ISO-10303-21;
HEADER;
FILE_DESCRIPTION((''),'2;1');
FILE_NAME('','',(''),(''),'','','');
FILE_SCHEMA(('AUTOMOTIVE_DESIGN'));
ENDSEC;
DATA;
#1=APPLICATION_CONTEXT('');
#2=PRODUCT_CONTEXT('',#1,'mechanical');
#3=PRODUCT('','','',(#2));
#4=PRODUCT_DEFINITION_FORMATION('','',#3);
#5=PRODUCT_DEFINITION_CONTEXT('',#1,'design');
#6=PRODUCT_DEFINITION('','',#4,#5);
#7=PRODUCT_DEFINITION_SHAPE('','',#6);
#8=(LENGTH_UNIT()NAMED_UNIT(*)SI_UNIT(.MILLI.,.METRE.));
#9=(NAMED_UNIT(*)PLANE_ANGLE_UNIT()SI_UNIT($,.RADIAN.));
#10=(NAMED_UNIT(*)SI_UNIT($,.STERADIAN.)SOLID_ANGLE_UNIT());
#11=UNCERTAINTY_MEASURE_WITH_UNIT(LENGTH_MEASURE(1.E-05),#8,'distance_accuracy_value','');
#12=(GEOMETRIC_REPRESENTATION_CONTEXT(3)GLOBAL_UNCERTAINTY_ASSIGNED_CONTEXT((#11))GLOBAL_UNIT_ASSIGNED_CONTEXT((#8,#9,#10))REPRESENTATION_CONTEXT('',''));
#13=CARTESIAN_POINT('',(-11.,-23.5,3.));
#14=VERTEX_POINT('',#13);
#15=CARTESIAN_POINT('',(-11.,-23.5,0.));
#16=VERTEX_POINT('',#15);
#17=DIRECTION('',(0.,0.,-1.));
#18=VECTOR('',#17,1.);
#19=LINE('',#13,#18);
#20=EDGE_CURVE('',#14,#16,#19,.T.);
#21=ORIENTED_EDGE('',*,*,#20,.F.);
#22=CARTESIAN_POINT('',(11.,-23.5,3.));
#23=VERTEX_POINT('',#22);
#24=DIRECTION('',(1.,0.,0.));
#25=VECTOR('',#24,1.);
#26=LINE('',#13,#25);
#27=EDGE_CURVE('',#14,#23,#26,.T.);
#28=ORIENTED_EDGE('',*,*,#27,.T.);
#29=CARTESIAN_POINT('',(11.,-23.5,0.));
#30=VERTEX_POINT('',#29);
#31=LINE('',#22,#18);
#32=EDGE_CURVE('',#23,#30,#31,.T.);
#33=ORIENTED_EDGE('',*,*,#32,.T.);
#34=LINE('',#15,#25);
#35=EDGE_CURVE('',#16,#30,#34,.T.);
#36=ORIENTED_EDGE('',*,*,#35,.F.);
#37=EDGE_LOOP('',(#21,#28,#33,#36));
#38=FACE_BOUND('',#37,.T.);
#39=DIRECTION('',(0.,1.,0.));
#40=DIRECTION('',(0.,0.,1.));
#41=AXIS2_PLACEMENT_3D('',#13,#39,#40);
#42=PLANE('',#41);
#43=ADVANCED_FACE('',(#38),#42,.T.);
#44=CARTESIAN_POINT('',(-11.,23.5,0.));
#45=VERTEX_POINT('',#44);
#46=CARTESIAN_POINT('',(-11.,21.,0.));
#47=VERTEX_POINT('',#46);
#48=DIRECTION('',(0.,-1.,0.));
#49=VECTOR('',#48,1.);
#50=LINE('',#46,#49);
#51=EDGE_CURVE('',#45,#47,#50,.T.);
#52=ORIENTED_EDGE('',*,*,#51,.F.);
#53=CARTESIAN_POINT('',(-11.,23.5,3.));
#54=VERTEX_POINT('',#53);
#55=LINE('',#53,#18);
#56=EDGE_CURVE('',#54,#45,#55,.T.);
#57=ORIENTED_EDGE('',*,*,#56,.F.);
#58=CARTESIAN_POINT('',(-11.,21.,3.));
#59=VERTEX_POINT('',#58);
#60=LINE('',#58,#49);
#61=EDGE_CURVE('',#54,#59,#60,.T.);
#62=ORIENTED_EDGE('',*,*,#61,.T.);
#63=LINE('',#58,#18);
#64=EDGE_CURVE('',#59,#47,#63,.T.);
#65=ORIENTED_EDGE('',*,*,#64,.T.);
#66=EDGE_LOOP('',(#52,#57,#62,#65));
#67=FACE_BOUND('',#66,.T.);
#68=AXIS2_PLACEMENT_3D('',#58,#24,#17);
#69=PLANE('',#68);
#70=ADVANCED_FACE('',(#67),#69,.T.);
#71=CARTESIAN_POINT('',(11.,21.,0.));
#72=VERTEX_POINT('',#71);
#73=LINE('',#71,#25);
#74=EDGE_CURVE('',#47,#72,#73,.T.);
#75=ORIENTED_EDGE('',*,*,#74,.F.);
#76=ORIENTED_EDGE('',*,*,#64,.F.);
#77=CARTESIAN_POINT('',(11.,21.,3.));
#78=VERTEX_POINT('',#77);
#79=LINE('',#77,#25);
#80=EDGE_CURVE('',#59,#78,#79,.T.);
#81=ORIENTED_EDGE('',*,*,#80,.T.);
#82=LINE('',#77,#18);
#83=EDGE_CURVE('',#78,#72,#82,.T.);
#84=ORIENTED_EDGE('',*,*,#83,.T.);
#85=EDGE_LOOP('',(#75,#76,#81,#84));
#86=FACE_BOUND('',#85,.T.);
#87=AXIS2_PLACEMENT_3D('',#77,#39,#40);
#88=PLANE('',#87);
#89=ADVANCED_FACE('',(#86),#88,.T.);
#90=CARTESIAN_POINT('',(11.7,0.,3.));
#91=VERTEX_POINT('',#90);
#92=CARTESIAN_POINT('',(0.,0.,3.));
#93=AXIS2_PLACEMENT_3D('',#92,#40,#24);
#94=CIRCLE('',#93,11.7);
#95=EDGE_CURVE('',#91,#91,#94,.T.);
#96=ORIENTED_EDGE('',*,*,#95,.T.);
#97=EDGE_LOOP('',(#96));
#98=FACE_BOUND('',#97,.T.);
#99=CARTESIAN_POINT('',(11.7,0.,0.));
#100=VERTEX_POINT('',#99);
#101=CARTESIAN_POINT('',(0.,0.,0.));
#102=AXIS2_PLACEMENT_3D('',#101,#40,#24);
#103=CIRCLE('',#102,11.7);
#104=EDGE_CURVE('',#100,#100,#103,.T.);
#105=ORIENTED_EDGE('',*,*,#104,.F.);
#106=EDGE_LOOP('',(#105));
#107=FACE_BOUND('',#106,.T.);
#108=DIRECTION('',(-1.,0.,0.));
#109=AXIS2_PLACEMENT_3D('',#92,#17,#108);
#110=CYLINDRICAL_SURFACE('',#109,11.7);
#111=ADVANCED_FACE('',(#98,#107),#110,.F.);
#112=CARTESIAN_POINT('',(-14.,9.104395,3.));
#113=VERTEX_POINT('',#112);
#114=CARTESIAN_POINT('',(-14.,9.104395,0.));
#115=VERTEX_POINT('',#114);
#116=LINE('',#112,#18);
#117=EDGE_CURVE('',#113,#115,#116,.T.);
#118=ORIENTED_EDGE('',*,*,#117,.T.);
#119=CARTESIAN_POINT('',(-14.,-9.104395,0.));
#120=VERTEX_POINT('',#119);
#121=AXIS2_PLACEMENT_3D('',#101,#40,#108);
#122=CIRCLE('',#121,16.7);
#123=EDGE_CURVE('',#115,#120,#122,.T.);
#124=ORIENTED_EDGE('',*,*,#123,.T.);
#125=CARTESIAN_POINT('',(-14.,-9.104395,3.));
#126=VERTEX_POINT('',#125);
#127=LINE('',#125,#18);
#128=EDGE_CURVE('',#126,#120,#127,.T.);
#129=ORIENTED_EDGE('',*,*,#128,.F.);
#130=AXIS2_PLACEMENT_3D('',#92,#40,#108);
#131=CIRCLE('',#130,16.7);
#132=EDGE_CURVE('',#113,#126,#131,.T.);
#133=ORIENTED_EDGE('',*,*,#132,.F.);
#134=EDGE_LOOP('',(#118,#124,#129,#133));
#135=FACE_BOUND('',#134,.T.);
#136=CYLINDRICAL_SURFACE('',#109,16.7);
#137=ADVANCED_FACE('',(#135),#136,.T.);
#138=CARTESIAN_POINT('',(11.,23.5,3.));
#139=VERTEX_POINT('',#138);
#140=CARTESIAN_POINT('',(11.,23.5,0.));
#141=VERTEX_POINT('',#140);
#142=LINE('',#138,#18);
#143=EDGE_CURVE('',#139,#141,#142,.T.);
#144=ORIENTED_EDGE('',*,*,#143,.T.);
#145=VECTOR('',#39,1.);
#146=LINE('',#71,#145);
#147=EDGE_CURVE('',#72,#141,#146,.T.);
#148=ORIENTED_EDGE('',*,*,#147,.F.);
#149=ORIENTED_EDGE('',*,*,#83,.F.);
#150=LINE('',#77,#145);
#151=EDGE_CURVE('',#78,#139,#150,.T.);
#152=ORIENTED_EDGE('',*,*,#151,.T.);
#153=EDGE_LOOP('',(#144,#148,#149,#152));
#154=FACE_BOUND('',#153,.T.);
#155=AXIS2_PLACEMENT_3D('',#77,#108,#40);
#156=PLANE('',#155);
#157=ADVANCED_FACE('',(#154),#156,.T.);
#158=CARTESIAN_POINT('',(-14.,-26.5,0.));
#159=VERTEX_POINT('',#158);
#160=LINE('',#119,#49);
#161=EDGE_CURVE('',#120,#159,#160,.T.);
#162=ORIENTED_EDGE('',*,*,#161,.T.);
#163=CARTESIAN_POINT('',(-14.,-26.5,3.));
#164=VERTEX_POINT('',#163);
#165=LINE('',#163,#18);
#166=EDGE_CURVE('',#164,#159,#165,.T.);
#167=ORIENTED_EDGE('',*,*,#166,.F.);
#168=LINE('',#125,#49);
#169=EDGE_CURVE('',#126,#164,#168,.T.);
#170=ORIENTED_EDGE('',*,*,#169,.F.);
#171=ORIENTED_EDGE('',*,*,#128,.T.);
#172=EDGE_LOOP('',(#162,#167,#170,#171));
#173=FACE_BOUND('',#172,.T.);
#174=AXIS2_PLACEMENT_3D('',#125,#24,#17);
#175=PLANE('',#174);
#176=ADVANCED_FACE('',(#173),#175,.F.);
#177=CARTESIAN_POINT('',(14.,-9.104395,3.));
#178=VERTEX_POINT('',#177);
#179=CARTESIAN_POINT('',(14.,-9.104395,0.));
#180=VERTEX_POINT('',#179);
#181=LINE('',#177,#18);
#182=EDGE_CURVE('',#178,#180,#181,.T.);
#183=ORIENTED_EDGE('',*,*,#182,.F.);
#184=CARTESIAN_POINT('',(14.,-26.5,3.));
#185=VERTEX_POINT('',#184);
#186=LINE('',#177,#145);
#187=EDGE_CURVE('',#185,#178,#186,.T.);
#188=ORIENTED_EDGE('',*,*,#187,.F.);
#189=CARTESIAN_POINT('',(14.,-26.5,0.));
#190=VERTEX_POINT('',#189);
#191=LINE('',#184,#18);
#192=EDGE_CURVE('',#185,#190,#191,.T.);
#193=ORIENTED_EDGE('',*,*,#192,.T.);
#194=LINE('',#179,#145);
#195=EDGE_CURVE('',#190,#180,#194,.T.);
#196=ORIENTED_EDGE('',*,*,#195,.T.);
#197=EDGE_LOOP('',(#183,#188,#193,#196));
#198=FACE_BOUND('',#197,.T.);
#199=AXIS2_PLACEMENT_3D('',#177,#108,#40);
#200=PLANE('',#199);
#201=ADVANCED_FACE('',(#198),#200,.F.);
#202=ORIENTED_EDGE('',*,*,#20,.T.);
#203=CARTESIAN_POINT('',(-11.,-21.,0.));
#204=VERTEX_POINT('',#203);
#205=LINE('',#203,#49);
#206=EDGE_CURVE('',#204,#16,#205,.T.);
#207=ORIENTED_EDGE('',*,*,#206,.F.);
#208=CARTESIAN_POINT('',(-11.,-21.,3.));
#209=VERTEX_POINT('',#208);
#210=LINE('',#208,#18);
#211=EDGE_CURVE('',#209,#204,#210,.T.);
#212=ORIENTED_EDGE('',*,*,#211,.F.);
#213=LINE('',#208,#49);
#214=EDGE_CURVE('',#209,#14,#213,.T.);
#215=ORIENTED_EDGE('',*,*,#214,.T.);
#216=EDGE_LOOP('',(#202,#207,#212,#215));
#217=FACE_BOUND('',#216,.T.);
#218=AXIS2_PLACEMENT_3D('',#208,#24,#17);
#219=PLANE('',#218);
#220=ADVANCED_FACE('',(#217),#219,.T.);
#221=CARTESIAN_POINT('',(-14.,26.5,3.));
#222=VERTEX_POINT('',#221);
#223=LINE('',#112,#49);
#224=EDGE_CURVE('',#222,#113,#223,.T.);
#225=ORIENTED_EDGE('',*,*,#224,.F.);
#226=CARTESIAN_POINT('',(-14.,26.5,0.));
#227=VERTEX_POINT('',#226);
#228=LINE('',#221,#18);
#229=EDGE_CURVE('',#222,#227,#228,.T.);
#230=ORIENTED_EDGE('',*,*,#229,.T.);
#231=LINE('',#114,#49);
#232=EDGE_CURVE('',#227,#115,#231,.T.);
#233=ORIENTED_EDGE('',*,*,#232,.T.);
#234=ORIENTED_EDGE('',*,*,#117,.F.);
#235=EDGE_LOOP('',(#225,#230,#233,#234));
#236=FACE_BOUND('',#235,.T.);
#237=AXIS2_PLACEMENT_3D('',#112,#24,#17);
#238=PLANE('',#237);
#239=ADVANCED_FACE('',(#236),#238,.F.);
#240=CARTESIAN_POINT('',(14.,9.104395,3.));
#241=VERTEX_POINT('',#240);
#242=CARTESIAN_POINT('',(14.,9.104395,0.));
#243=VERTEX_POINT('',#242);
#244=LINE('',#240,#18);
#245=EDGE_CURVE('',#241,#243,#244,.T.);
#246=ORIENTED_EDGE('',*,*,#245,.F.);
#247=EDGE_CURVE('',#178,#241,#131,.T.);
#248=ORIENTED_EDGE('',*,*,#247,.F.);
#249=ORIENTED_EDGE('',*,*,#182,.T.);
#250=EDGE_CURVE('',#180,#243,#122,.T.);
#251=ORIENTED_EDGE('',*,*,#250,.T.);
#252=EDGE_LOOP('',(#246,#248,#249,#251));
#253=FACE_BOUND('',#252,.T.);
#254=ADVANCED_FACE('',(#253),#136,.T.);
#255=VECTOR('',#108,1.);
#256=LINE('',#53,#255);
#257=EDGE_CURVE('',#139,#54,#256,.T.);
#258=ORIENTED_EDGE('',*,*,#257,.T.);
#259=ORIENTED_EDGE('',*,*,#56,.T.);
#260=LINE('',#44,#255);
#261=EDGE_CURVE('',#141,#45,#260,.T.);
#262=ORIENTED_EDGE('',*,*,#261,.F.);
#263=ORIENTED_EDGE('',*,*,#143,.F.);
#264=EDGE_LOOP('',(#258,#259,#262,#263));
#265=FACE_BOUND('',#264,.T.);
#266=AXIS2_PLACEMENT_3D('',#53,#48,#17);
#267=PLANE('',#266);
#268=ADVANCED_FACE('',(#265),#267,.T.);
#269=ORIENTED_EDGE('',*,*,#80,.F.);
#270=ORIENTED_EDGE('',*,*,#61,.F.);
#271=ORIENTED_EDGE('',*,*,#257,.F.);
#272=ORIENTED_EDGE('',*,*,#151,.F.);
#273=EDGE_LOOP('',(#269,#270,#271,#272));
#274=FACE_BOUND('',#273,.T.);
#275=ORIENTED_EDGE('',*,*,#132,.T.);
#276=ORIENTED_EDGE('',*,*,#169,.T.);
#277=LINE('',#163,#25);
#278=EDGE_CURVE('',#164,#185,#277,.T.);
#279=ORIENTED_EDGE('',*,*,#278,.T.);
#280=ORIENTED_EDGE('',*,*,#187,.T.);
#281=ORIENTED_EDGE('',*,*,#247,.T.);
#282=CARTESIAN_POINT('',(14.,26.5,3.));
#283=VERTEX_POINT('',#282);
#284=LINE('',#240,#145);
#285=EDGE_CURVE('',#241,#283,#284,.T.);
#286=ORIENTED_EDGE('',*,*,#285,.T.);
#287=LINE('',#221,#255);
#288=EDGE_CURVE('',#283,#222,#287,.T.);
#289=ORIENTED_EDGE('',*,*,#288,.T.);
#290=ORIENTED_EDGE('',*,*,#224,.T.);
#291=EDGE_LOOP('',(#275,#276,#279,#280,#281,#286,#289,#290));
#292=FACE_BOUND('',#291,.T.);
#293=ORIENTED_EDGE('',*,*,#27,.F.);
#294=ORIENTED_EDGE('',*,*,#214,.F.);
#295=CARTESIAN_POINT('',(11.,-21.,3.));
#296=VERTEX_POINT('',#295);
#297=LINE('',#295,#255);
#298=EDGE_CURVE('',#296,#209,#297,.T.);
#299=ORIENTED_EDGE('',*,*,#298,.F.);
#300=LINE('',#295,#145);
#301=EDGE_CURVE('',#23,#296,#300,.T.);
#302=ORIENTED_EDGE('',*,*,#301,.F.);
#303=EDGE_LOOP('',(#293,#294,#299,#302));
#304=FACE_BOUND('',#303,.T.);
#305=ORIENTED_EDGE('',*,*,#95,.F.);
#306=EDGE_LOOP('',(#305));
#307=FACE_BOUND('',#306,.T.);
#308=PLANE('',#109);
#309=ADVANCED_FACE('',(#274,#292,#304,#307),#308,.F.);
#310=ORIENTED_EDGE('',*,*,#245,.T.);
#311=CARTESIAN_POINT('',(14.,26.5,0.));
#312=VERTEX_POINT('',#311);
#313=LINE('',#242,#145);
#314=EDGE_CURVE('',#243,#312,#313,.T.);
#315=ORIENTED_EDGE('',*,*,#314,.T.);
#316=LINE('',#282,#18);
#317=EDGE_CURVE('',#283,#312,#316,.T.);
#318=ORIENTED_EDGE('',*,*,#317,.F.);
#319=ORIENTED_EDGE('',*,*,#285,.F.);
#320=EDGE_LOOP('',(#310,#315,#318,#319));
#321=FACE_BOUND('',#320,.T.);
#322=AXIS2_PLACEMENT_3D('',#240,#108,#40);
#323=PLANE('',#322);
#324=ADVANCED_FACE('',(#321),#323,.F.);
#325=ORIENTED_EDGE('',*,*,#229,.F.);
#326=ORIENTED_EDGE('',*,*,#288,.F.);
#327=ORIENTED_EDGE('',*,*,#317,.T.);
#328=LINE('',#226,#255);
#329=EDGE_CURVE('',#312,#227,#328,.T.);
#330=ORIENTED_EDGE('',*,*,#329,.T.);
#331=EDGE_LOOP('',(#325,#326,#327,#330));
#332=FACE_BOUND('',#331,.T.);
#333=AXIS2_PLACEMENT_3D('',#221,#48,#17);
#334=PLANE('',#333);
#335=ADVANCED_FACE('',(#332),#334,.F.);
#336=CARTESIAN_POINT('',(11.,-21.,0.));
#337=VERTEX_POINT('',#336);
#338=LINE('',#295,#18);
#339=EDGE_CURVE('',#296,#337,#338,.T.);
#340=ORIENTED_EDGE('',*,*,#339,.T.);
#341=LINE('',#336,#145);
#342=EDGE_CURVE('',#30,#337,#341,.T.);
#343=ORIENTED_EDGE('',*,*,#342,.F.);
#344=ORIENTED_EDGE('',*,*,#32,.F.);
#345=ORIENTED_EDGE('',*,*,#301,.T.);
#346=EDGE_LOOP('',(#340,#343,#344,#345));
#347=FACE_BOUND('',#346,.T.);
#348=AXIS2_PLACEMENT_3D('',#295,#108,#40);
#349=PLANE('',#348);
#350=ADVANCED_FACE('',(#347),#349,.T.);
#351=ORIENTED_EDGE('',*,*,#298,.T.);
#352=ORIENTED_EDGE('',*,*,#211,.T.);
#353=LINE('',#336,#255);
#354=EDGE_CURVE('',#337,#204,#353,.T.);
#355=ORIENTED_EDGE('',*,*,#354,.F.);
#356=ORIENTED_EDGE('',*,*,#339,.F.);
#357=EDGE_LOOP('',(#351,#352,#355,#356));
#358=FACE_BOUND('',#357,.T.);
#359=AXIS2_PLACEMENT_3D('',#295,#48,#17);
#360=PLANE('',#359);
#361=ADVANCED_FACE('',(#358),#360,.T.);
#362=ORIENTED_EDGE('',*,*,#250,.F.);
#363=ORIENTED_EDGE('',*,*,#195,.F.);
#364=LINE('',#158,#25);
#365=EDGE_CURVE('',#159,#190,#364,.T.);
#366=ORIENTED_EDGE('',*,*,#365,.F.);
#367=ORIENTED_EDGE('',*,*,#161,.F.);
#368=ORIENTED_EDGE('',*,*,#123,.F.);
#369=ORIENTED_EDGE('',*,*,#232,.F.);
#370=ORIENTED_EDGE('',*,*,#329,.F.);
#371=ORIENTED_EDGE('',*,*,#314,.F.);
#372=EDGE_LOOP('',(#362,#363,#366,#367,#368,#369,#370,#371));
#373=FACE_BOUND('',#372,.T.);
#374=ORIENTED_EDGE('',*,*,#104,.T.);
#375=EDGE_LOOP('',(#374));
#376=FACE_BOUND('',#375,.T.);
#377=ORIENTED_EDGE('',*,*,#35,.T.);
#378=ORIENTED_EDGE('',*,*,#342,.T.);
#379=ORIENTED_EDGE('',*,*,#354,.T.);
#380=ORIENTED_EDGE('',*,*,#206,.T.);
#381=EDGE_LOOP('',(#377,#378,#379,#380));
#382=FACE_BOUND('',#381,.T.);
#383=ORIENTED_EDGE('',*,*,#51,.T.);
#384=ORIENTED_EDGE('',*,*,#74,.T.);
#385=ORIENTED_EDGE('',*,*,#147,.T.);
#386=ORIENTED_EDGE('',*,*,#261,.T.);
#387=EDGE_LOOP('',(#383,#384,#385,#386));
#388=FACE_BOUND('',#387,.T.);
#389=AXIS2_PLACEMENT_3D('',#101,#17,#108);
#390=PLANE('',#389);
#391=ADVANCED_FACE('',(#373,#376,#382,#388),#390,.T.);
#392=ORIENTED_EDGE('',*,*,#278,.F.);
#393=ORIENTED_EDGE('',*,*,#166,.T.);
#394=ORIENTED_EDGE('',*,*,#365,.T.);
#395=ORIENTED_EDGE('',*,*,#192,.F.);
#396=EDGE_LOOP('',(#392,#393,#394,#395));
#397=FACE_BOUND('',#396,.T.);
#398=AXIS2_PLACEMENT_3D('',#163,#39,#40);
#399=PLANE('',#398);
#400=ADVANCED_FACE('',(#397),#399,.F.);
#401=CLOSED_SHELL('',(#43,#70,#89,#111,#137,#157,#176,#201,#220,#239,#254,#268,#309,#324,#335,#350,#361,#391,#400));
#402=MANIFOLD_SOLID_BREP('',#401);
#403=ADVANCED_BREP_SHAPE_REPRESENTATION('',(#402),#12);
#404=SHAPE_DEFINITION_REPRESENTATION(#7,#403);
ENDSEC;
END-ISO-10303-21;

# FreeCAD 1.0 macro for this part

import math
import FreeCAD as App
import Part
import Sketcher
Q = App.Units.Quantity


def add_polygon(sketch, points):
    """Adds a closed chain of lines whose ends are joined by coincident constraints."""
    first, n = sketch.GeometryCount, len(points)
    for a, b in zip(points, points[1:] + points[:1]):
        sketch.addGeometry(Part.LineSegment(App.Vector(*a, 0), App.Vector(*b, 0)), False)
    for i in range(n):
        sketch.addConstraint(Sketcher.Constraint("Coincident", first + i, 2, first + (i + 1) % n, 1))

doc = App.newDocument("Part")
body = doc.addObject("PartDesign::Body", "Body")

sketch1 = body.newObject("Sketcher::SketchObject", "Sketch")
sketch1.AttachmentSupport = (doc.getObject("XY_Plane"), [""])
sketch1.MapMode = "FlatFace"
sketch1.addGeometry(Part.LineSegment(App.Vector(-14, 26.5, 0), App.Vector(-14, 9.1, 0)), False)
sketch1.addGeometry(Part.ArcOfCircle(Part.Circle(App.Vector(0, 0, 0), App.Vector(0, 0, 1), 16.7), math.radians(147), math.radians(213)), False)
sketch1.addGeometry(Part.LineSegment(App.Vector(-14, -9.1, 0), App.Vector(-14, -26.5, 0)), False)
sketch1.addGeometry(Part.LineSegment(App.Vector(-14, -26.5, 0), App.Vector(14, -26.5, 0)), False)
sketch1.addGeometry(Part.LineSegment(App.Vector(14, -26.5, 0), App.Vector(14, -9.1, 0)), False)
sketch1.addGeometry(Part.ArcOfCircle(Part.Circle(App.Vector(0, 0, 0), App.Vector(0, 0, 1), 16.7), math.radians(-33), math.radians(33)), False)
sketch1.addGeometry(Part.LineSegment(App.Vector(14, 9.1, 0), App.Vector(14, 26.5, 0)), False)
sketch1.addGeometry(Part.LineSegment(App.Vector(14, 26.5, 0), App.Vector(-14, 26.5, 0)), False)
add_polygon(sketch1, [(-11, -23.5), (-11, -21), (11, -21), (11, -23.5)])
sketch1.addGeometry(Part.Circle(App.Vector(0, 0, 0), App.Vector(0, 0, 1), 11.7), False)
add_polygon(sketch1, [(-11, 21), (-11, 23.5), (11, 23.5), (11, 21)])
sketch1.addConstraint([
    Sketcher.Constraint("Coincident", 0, 2, 1, 1),
    Sketcher.Constraint("Coincident", 1, 2, 2, 1),
    Sketcher.Constraint("Coincident", 2, 2, 3, 1),
    Sketcher.Constraint("Coincident", 3, 2, 4, 1),
    Sketcher.Constraint("Coincident", 4, 2, 5, 1),
    Sketcher.Constraint("Coincident", 5, 2, 6, 1),
    Sketcher.Constraint("Coincident", 6, 2, 7, 1),
    Sketcher.Constraint("Coincident", 7, 2, 0, 1),
    Sketcher.Constraint("Vertical", 0),
    Sketcher.Constraint("Vertical", 2),
    Sketcher.Constraint("Horizontal", 3),
    Sketcher.Constraint("Vertical", 4),
    Sketcher.Constraint("Vertical", 6),
    Sketcher.Constraint("Horizontal", 7),
    Sketcher.Constraint("Vertical", 8),
    Sketcher.Constraint("Horizontal", 9),
    Sketcher.Constraint("Vertical", 10),
    Sketcher.Constraint("Horizontal", 11),
    Sketcher.Constraint("Vertical", 13),
    Sketcher.Constraint("Horizontal", 14),
    Sketcher.Constraint("Vertical", 15),
    Sketcher.Constraint("Horizontal", 16),
    Sketcher.Constraint("Coincident", 1, 3, -1, 1),
    Sketcher.Constraint("Coincident", 5, 3, -1, 1),
    Sketcher.Constraint("Coincident", 12, 3, -1, 1),
    Sketcher.Constraint("Equal", 1, 5),
    Sketcher.Constraint("Symmetric", 2, 2, 6, 2, -1, 1),
    Sketcher.Constraint("Symmetric", 10, 2, 13, 2, -1, 1),
    Sketcher.Constraint("Symmetric", 8, 2, 15, 2, -1, 1),
    Sketcher.Constraint("Horizontal", 1, 2, 4, 2),
    Sketcher.Constraint("Horizontal", 0, 2, 5, 2),
    Sketcher.Constraint("Vertical", 11, 2, 13, 2),
    Sketcher.Constraint("Diameter", 12, Q("23.4 mm")),
    Sketcher.Constraint("Radius", 1, Q("16.7 mm")),
    Sketcher.Constraint("DistanceX", 3, 1, 3, 2, Q("28 mm")),
    Sketcher.Constraint("DistanceX", 9, 1, 9, 2, Q("22 mm")),
    Sketcher.Constraint("DistanceY", 8, 1, 8, 2, Q("2.5 mm")),
    Sketcher.Constraint("DistanceY", 8, 2, -1, 1, Q("21 mm")),
    Sketcher.Constraint("DistanceY", 3, 2, 10, 2, Q("3 mm")),
])
pad1 = body.newObject("PartDesign::Pad", "Pad")
pad1.Profile = sketch1
pad1.Length = 3

doc.recompute()
